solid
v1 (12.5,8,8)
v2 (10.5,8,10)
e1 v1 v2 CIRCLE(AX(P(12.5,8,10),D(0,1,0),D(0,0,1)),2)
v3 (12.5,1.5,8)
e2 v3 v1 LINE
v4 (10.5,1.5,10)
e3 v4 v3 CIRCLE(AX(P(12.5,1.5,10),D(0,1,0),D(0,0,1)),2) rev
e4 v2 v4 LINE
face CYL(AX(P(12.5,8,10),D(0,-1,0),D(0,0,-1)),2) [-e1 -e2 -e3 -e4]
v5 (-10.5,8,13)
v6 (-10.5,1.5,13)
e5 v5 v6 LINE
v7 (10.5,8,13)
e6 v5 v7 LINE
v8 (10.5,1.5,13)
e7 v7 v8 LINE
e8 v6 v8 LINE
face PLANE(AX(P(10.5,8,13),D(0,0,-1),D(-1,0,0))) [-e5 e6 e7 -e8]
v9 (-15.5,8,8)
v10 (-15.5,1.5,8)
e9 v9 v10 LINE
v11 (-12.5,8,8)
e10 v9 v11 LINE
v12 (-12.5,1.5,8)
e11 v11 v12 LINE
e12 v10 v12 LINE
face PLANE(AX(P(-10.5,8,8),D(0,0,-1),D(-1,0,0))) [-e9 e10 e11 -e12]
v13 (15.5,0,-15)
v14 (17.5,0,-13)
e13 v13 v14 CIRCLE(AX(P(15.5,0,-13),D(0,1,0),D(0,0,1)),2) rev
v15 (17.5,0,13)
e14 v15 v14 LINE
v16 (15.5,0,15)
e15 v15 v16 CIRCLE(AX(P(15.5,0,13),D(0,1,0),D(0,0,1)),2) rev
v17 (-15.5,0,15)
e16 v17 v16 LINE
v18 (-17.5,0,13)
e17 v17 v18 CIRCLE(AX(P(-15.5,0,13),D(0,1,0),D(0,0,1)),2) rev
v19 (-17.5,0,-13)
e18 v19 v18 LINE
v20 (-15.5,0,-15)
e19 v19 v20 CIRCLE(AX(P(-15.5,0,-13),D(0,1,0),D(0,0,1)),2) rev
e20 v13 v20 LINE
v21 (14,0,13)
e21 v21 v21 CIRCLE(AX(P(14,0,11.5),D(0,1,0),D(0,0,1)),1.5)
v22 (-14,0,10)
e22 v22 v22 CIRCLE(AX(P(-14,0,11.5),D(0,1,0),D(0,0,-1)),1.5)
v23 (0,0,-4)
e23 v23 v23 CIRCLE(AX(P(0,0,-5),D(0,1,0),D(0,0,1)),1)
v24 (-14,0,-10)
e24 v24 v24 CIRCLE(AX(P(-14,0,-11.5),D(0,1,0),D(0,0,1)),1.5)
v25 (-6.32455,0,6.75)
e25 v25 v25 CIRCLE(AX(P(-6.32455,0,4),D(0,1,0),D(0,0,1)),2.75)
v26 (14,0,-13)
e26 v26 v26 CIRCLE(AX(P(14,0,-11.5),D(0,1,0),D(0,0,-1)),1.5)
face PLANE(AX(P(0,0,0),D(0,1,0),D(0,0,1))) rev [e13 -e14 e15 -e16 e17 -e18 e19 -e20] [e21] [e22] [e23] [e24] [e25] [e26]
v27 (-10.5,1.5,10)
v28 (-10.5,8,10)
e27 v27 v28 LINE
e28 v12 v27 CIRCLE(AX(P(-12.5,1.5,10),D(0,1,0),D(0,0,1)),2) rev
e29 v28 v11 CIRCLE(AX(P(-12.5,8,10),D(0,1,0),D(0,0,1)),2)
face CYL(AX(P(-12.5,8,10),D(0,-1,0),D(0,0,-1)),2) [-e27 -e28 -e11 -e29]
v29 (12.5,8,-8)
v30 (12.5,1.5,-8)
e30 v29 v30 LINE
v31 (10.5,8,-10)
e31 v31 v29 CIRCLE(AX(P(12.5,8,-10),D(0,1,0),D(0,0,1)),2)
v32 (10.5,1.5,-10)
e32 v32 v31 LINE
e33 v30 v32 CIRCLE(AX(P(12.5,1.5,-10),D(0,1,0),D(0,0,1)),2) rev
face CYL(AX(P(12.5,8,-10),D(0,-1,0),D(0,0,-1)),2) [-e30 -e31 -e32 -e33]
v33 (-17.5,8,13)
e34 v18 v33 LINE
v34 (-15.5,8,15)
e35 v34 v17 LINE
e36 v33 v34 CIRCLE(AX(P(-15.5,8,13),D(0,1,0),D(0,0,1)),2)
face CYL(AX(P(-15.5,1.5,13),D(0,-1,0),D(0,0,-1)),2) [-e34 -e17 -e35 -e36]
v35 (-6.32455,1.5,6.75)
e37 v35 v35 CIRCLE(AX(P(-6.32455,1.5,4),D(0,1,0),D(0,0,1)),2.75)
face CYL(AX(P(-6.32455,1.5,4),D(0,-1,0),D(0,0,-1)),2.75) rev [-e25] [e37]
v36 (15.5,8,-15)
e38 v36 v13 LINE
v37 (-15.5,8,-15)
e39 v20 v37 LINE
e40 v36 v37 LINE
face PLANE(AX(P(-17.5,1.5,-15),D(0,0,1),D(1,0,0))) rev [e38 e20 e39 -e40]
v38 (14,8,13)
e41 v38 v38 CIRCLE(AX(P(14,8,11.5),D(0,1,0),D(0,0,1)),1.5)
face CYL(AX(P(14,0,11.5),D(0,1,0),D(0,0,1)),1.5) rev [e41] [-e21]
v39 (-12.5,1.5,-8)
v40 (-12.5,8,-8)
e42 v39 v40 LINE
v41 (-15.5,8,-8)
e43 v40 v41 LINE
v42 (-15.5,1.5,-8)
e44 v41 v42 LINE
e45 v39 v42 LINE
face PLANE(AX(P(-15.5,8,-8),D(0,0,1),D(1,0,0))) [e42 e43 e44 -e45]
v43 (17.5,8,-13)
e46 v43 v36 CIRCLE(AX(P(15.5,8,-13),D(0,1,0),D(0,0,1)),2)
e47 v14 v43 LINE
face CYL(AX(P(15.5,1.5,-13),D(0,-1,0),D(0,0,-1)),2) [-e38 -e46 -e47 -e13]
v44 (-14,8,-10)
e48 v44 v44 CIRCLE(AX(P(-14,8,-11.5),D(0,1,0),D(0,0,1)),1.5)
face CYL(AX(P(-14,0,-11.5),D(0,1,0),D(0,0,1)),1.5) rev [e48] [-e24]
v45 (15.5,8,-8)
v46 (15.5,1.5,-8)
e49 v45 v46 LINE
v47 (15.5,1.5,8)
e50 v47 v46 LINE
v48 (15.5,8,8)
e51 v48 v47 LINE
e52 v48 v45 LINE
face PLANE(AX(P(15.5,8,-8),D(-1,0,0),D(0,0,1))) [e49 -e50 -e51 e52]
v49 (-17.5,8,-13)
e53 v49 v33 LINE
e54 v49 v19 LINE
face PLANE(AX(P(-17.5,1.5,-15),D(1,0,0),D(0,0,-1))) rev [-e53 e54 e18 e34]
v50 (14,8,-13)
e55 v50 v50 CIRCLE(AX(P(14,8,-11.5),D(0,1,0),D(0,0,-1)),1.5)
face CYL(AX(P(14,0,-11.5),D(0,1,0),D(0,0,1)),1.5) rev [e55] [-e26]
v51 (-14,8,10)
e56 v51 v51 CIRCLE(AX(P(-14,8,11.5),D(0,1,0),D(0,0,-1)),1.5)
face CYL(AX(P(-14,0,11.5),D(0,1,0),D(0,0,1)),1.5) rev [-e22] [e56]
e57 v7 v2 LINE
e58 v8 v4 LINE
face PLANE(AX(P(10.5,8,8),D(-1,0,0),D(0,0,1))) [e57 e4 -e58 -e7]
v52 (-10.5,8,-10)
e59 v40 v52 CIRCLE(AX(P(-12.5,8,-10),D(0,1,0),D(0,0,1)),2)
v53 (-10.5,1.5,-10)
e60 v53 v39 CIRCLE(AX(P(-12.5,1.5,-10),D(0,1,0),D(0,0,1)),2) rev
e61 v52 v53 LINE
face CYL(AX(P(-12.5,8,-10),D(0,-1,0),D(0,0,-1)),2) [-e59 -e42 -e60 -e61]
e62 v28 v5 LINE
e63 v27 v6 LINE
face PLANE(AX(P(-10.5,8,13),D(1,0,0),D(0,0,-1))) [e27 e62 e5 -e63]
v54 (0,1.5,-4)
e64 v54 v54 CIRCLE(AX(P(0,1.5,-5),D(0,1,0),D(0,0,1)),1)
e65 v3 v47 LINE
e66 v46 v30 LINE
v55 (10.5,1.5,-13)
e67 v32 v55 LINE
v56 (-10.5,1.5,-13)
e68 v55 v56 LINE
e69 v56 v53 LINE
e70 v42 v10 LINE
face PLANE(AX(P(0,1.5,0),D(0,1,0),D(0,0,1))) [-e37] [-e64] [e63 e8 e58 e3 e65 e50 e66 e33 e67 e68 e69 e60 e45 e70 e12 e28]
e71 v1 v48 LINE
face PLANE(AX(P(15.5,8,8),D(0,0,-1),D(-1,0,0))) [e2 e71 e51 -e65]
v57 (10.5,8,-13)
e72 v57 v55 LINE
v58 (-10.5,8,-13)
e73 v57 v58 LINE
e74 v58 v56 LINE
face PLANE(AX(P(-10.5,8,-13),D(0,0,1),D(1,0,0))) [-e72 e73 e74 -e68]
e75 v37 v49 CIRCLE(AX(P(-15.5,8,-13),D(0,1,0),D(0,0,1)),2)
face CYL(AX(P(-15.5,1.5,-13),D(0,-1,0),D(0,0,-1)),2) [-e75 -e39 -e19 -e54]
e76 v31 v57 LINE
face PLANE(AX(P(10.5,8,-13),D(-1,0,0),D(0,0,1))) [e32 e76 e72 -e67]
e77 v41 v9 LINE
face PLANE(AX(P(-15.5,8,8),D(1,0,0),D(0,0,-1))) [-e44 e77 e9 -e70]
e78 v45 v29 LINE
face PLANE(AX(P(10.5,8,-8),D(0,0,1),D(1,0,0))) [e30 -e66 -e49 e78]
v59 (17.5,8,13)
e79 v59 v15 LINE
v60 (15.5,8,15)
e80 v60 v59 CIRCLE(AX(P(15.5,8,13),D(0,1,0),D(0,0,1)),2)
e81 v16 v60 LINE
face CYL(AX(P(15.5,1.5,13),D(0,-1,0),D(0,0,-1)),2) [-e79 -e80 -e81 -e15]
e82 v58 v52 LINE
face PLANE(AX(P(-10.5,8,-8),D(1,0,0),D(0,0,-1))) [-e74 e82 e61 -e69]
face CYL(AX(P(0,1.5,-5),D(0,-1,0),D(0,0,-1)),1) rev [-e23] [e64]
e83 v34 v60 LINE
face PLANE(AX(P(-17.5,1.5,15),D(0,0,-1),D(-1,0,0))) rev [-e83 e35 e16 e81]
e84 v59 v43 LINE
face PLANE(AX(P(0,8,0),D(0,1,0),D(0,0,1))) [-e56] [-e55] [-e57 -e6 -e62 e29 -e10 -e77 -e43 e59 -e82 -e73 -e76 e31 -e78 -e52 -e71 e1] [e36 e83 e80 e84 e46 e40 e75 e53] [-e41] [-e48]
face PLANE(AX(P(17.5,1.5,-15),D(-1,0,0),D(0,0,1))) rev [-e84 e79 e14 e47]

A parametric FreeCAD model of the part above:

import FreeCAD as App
import Part
import Sketcher


def edges_at(feature, points):
    """Names of the edges that pass closest to the given points."""
    edges = feature.Shape.Edges
    near = lambda p: min(range(len(edges)), key=lambda i: edges[i].distToShape(Part.Vertex(*p))[0])
    return sorted({f"Edge{near(p) + 1}" for p in points})


def add_polygon(sketch, points):
    """Adds a closed chain of lines whose ends are joined by coincident constraints."""
    first, n = sketch.GeometryCount, len(points)
    for a, b in zip(points, points[1:] + points[:1]):
        sketch.addGeometry(Part.LineSegment(App.Vector(*a, 0), App.Vector(*b, 0)), False)
    for i in range(n):
        sketch.addConstraint(Sketcher.Constraint("Coincident", first + i, 2, first + (i + 1) % n, 1))

doc = App.newDocument("Part")
params = doc.addObject("Spreadsheet::Sheet", "Params")
for row, (alias, value) in enumerate([
    ("sketch1_diameter", "2 mm"),
    ("sketch1_diameter2", "5.5 mm"),
    ("sketch1_width", "35 mm"),
    ("sketch1_height", "30 mm"),
    ("pad1_length", "1.5 mm"),
    ("sketch2_width", "35 mm"),
    ("sketch2_width2", "21 mm"),
    ("sketch2_width3", "5 mm"),
    ("sketch2_height", "30 mm"),
    ("sketch2_height2", "16 mm"),
    ("pad2_length", "6.5 mm"),
    ("sketch3_diameter", "3 mm"),
    ("fillet_radius", "2 mm"),
], start=1):
    params.set(f"A{row}", alias)
    params.set(f"B{row}", "=" + value)
    params.setAlias(f"B{row}", alias)

body = doc.addObject("PartDesign::Body", "Body")

sketch1 = doc.addObject("Sketcher::SketchObject", "Sketch")
body.addObject(sketch1)
sketch1.AttachmentSupport = (doc.XZ_Plane, [""])
sketch1.MapMode = "FlatFace"
add_polygon(sketch1, [(-17.5, -15), (-17.5, 15), (17.5, 15), (17.5, -15)])
sketch1.addGeometry(Part.Circle(App.Vector(-6.3, 4, 0), App.Vector(0, 0, 1), 2.8), False)
sketch1.addGeometry(Part.Circle(App.Vector(0, -5, 0), App.Vector(0, 0, 1), 1), False)
sketch1.addConstraint([
    Sketcher.Constraint("Vertical", 0),
    Sketcher.Constraint("Horizontal", 1),
    Sketcher.Constraint("Vertical", 2),
    Sketcher.Constraint("Horizontal", 3),
    Sketcher.Constraint("Symmetric", 0, 2, 2, 2, -1, 1),
    Sketcher.Constraint("PointOnObject", 5, 3, -2),
    Sketcher.Constraint("Diameter", 5, 2.0),
    Sketcher.Constraint("Diameter", 4, 5.5),
    Sketcher.Constraint("DistanceX", 1, 1, 1, 2, 35.0),
    Sketcher.Constraint("DistanceY", 0, 1, 0, 2, 30.0),
    Sketcher.Constraint("DistanceY", -1, 1, 4, 3, 4.0),
    Sketcher.Constraint("DistanceY", 5, 3, -1, 1, 5.0),
    Sketcher.Constraint("DistanceX", 4, 3, -1, 1, 6.32455),
])
sketch1.setExpression("Constraints[10]", "Params.sketch1_diameter")
sketch1.setExpression("Constraints[11]", "Params.sketch1_diameter2")
sketch1.setExpression("Constraints[12]", "Params.sketch1_width")
sketch1.setExpression("Constraints[13]", "Params.sketch1_height")
pad1 = doc.addObject("PartDesign::Pad", "Pad")
body.addObject(pad1)
pad1.Profile = sketch1
pad1.setExpression("Length", "Params.pad1_length")
pad1.Reversed = True

sketch2 = doc.addObject("Sketcher::SketchObject", "Sketch001")
body.addObject(sketch2)
sketch2.AttachmentSupport = (doc.XZ_Plane, [""])
sketch2.MapMode = "FlatFace"
sketch2.AttachmentOffset = App.Placement(App.Vector(0, 0, -1.5), App.Rotation())
add_polygon(sketch2, [(-18, -15), (-18, 15), (18, 15), (18, -15)])
add_polygon(sketch2, [(-10, -8), (-10, -13), (10, -13), (10, -8), (16, -8), (16, 8), (10, 8), (10, 13), (-10, 13), (-10, 8), (-16, 8), (-16, -8)])
sketch2.addConstraint([
    Sketcher.Constraint("Vertical", 0),
    Sketcher.Constraint("Horizontal", 1),
    Sketcher.Constraint("Vertical", 2),
    Sketcher.Constraint("Horizontal", 3),
    Sketcher.Constraint("Vertical", 4),
    Sketcher.Constraint("Horizontal", 5),
    Sketcher.Constraint("Vertical", 6),
    Sketcher.Constraint("Horizontal", 7),
    Sketcher.Constraint("Vertical", 8),
    Sketcher.Constraint("Horizontal", 9),
    Sketcher.Constraint("Vertical", 10),
    Sketcher.Constraint("Horizontal", 11),
    Sketcher.Constraint("Vertical", 12),
    Sketcher.Constraint("Horizontal", 13),
    Sketcher.Constraint("Vertical", 14),
    Sketcher.Constraint("Horizontal", 15),
    Sketcher.Constraint("Symmetric", 0, 2, 2, 2, -1, 1),
    Sketcher.Constraint("Symmetric", 4, 2, 10, 2, -1, 1),
    Sketcher.Constraint("Symmetric", 6, 2, 12, 2, -1, 1),
    Sketcher.Constraint("Symmetric", 8, 2, 14, 2, -1, 1),
    Sketcher.Constraint("Symmetric", 9, 2, 12, 2, -2),
    Sketcher.Constraint("Equal", 15, 4),
    Sketcher.Constraint("DistanceX", 1, 1, 1, 2, 35.0),
    Sketcher.Constraint("DistanceX", 5, 1, 5, 2, 21.0),
    Sketcher.Constraint("DistanceX", 7, 1, 7, 2, 5.0),
    Sketcher.Constraint("DistanceY", 0, 1, 0, 2, 30.0),
    Sketcher.Constraint("DistanceY", 8, 1, 8, 2, 16.0),
])
sketch2.setExpression("Constraints[38]", "Params.sketch2_width")
sketch2.setExpression("Constraints[39]", "Params.sketch2_width2")
sketch2.setExpression("Constraints[40]", "Params.sketch2_width3")
sketch2.setExpression("Constraints[41]", "Params.sketch2_height")
sketch2.setExpression("Constraints[42]", "Params.sketch2_height2")
pad2 = doc.addObject("PartDesign::Pad", "Pad001")
body.addObject(pad2)
pad2.Profile = sketch2
pad2.setExpression("Length", "Params.pad2_length")
pad2.Reversed = True

sketch3 = doc.addObject("Sketcher::SketchObject", "Sketch002")
body.addObject(sketch3)
sketch3.AttachmentSupport = (doc.XZ_Plane, [""])
sketch3.MapMode = "FlatFace"
sketch3.AttachmentOffset = App.Placement(App.Vector(0, 0, -8), App.Rotation())
sketch3.addGeometry([
    Part.Circle(App.Vector(-14, -11.5, 0), App.Vector(0, 0, 1), 1.5),
    Part.Circle(App.Vector(-14, 11.5, 0), App.Vector(0, 0, 1), 1.5),
    Part.Circle(App.Vector(14, 11.5, 0), App.Vector(0, 0, 1), 1.5),
    Part.Circle(App.Vector(14, -11.5, 0), App.Vector(0, 0, 1), 1.5),
], False)
sketch3.addConstraint([
    Sketcher.Constraint("Equal", 0, 1),
    Sketcher.Constraint("Equal", 1, 2),
    Sketcher.Constraint("Equal", 2, 3),
    Sketcher.Constraint("Symmetric", 0, 3, 2, 3, -1, 1),
    Sketcher.Constraint("Symmetric", 1, 3, 3, 3, -1, 1),
    Sketcher.Constraint("Symmetric", 1, 3, 2, 3, -2),
    Sketcher.Constraint("Diameter", 0, 3.0),
    Sketcher.Constraint("DistanceX", 0, 3, -1, 1, 14.0),
    Sketcher.Constraint("DistanceY", 0, 3, 1, 3, 23.0),
])
sketch3.setExpression("Constraints[6]", "Params.sketch3_diameter")
pocket1 = doc.addObject("PartDesign::Pocket", "Pocket")
body.addObject(pocket1)
pocket1.Profile = sketch3
pocket1.Type = "ThroughAll"
pocket1.Reversed = True
doc.recompute()

fillet = doc.addObject("PartDesign::Fillet", "Fillet")
body.addObject(fillet)
fillet.Base = (pocket1, edges_at(pocket1, [
    (-10.5, 4.75, -8),
    (-10.5, 4.75, 8),
    (10.5, 4.75, 8),
    (10.5, 4.75, -8),
    (17.5, 4, 15),
    (-17.5, 4, 15),
    (-17.5, 4, -15),
    (17.5, 4, -15),
]))
fillet.setExpression("Radius", "Params.fillet_radius")

doc.recompute()
